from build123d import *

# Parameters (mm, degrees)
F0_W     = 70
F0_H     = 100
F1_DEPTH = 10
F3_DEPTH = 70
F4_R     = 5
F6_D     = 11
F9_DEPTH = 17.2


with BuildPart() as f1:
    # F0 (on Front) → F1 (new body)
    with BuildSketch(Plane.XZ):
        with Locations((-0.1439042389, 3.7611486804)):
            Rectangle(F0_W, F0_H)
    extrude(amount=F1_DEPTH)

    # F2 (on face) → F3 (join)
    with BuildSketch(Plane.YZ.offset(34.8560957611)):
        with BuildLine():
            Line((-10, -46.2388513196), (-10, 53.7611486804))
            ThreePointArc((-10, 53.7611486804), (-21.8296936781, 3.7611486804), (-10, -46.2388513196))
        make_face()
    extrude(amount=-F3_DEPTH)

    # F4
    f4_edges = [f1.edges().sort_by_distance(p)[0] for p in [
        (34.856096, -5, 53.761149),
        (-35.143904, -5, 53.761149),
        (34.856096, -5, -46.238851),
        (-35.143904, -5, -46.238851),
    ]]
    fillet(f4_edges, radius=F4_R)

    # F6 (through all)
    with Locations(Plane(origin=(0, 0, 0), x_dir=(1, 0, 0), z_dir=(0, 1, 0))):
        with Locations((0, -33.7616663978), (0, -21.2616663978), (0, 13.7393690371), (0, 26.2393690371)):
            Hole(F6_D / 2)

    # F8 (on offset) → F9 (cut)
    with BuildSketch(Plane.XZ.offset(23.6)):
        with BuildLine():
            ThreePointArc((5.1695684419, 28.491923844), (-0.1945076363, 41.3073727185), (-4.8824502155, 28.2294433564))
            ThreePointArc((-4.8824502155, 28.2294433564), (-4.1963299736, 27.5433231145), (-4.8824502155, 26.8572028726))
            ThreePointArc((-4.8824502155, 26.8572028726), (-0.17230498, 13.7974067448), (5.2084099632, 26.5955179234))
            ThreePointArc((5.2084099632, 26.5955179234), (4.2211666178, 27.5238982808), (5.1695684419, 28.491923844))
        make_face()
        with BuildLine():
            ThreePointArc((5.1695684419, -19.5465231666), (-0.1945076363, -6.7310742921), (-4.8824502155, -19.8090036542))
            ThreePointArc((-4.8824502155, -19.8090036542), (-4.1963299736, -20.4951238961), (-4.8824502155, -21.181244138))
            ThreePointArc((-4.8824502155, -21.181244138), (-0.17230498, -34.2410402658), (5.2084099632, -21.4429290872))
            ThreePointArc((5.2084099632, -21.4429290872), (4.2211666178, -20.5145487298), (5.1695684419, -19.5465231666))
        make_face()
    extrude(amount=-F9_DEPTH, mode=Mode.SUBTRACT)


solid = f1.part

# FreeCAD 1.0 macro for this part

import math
import FreeCAD as App
import Part
import Sketcher

V = App.Vector
Q = App.Units.Quantity


def edges_at(feature, points):
    """Names of the edges that pass closest to the given points."""
    edges = feature.Shape.Edges
    near = lambda p: min(range(len(edges)), key=lambda i: edges[i].distToShape(Part.Vertex(*p))[0])
    return sorted({f"Edge{near(p) + 1}" for p in points})

doc = App.newDocument("Part")
body = doc.addObject("PartDesign::Body", "Body")

# Sketch on XZ plane
sketch1 = body.newObject("Sketcher::SketchObject", "Sketch")
sketch1.AttachmentSupport = (doc.getObject("XZ_Plane"), [""])
sketch1.MapMode = "FlatFace"
sketch1.addGeometry([
    Part.LineSegment(V(-35.143904, 53.761149, 0), V(-35.143904, -46.238851, 0)),
    Part.LineSegment(V(-35.143904, -46.238851, 0), V(34.856096, -46.238851, 0)),
    Part.LineSegment(V(34.856096, -46.238851, 0), V(34.856096, 53.761149, 0)),
    Part.LineSegment(V(34.856096, 53.761149, 0), V(-35.143904, 53.761149, 0)),
], False)
sketch1.addConstraint([
    Sketcher.Constraint("Coincident", 0, 2, 1, 1),
    Sketcher.Constraint("Coincident", 1, 2, 2, 1),
    Sketcher.Constraint("Coincident", 2, 2, 3, 1),
    Sketcher.Constraint("Coincident", 3, 2, 0, 1),
    Sketcher.Constraint("Vertical", 0),
    Sketcher.Constraint("Horizontal", 1),
    Sketcher.Constraint("Vertical", 2),
    Sketcher.Constraint("Horizontal", 3),
    Sketcher.Constraint("DistanceX", 1, 1, 1, 2, Q("70 mm")),
    Sketcher.Constraint("DistanceY", 0, 2, 0, 1, Q("100 mm")),
    Sketcher.Constraint("DistanceY", 0, 2, -1, 1, Q("46.238851 mm")),
    Sketcher.Constraint("DistanceX", 0, 2, -1, 1, Q("35.143904 mm")),
])
pad1 = body.newObject("PartDesign::Pad", "Pad")
pad1.Profile = sketch1
pad1.Length = 10

# Sketch on YZ plane
sketch2 = body.newObject("Sketcher::SketchObject", "Sketch001")
sketch2.AttachmentSupport = (doc.getObject("YZ_Plane"), [""])
sketch2.MapMode = "FlatFace"
sketch2.AttachmentOffset = App.Placement(V(0, 0, 34.856096), App.Rotation())
sketch2.addGeometry([
    Part.LineSegment(V(-10, -46.238851, 0), V(-10, 53.761149, 0)),
    Part.ArcOfCircle(Part.Circle(V(89.751456, 3.761149, 0), V(0, 0, 1), 111.58115), math.radians(153.377873), math.radians(206.622127)),
], False)
sketch2.addConstraint([
    Sketcher.Constraint("Coincident", 0, 1, 1, 2),
    Sketcher.Constraint("Coincident", 1, 1, 0, 2),
    Sketcher.Constraint("Vertical", 0),
    Sketcher.Constraint("DistanceY", 0, 1, 0, 2, Q("100 mm")),
    Sketcher.Constraint("DistanceX", 0, 1, -1, 1, Q("10 mm")),
    Sketcher.Constraint("Radius", 1, Q("111.58115 mm")),
    Sketcher.Constraint("DistanceY", -1, 1, 1, 3, Q("3.761149 mm")),
])
pad2 = body.newObject("PartDesign::Pad", "Pad001")
pad2.Profile = sketch2
pad2.Length = 70
pad2.Reversed = True
doc.recompute()

fillet = body.newObject("PartDesign::Fillet", "Fillet")
fillet.Base = (pad2, edges_at(pad2, [
    (34.856, -5, 53.761),
    (-35.144, -5, 53.761),
    (34.856, -5, -46.239),
    (-35.144, -5, -46.239),
]))
fillet.Radius = 5

# Sketch on XZ plane
sketch3 = body.newObject("Sketcher::SketchObject", "Sketch002")
sketch3.AttachmentSupport = (doc.getObject("XZ_Plane"), [""])
sketch3.MapMode = "FlatFace"
sketch3.addGeometry([
    Part.Circle(V(0, 33.761666, 0), V(0, 0, 1), 5.5),
    Part.Circle(V(0, 21.261666, 0), V(0, 0, 1), 5.5),
    Part.Circle(V(0, -13.739369, 0), V(0, 0, 1), 5.5),
    Part.Circle(V(0, -26.239369, 0), V(0, 0, 1), 5.5),
], False)
sketch3.addConstraint([
    Sketcher.Constraint("Equal", 0, 1),
    Sketcher.Constraint("Equal", 1, 2),
    Sketcher.Constraint("Equal", 2, 3),
    Sketcher.Constraint("PointOnObject", 0, 3, -2),
    Sketcher.Constraint("PointOnObject", 1, 3, -2),
    Sketcher.Constraint("PointOnObject", 2, 3, -2),
    Sketcher.Constraint("PointOnObject", 3, 3, -2),
    Sketcher.Constraint("Diameter", 0, Q("11 mm")),
    Sketcher.Constraint("DistanceY", 1, 3, 0, 3, Q("12.5 mm")),
    Sketcher.Constraint("DistanceY", 3, 3, 2, 3, Q("12.5 mm")),
    Sketcher.Constraint("DistanceY", 2, 3, -1, 1, Q("13.739369 mm")),
    Sketcher.Constraint("DistanceY", -1, 1, 0, 3, Q("33.761666 mm")),
])
doc.recompute()
hole = body.newObject("PartDesign::Hole", "Hole")
hole.Profile = sketch3
hole.ThreadType = "None"
hole.Diameter = 11
hole.DepthType = "ThroughAll"
hole.Reversed = True

# Sketch on XZ plane
sketch4 = body.newObject("Sketcher::SketchObject", "Sketch003")
sketch4.AttachmentSupport = (doc.getObject("XZ_Plane"), [""])
sketch4.MapMode = "FlatFace"
sketch4.AttachmentOffset = App.Placement(V(0, 0, 23.6), App.Rotation())
sketch4.addGeometry([
    Part.ArcOfCircle(Part.Circle(V(0, 33.858459, 0), V(0, 0, 1), 7.451452), math.radians(-46.070991), math.radians(229.062551)),  # 0
    Part.ArcOfCircle(Part.Circle(V(-4.88245, 27.543323, 0), V(0, 0, 1), 0.68612), math.radians(-90), math.radians(90)),  # 1
    Part.ArcOfCircle(Part.Circle(V(0.020868, 21.246355, 0), V(0, 0, 1), 7.451452), math.radians(131.150196), math.radians(405.878782)),  # 2
    Part.ArcOfCircle(Part.Circle(V(5.169568, 27.543323, 0), V(0, 0, 1), 0.948601), math.radians(90), math.radians(272.346696)),  # 3
    Part.ArcOfCircle(Part.Circle(V(0, -14.179988, 0), V(0, 0, 1), 7.451452), math.radians(-46.070991), math.radians(229.062551)),  # 4
    Part.ArcOfCircle(Part.Circle(V(-4.88245, -20.495124, 0), V(0, 0, 1), 0.68612), math.radians(-90), math.radians(90)),  # 5
    Part.ArcOfCircle(Part.Circle(V(0.020868, -26.792092, 0), V(0, 0, 1), 7.451452), math.radians(131.150196), math.radians(405.878782)),  # 6
    Part.ArcOfCircle(Part.Circle(V(5.169568, -20.495124, 0), V(0, 0, 1), 0.948601), math.radians(90), math.radians(272.346696)),  # 7
], False)
sketch4.addConstraint([
    Sketcher.Constraint("Coincident", 0, 2, 1, 2),
    Sketcher.Constraint("Coincident", 1, 1, 2, 1),
    Sketcher.Constraint("Coincident", 2, 2, 3, 2),
    Sketcher.Constraint("Coincident", 3, 1, 0, 1),
    Sketcher.Constraint("Coincident", 4, 2, 5, 2),
    Sketcher.Constraint("Coincident", 5, 1, 6, 1),
    Sketcher.Constraint("Coincident", 6, 2, 7, 2),
    Sketcher.Constraint("Coincident", 7, 1, 4, 1),
    Sketcher.Constraint("Equal", 0, 2),
    Sketcher.Constraint("Equal", 2, 4),
    Sketcher.Constraint("Equal", 1, 5),
    Sketcher.Constraint("Equal", 4, 6),
    Sketcher.Constraint("Equal", 3, 7),
    Sketcher.Constraint("PointOnObject", 0, 3, -2),
    Sketcher.Constraint("PointOnObject", 4, 3, -2),
    Sketcher.Constraint("Horizontal", 1, 3, 3, 3),
    Sketcher.Constraint("Horizontal", 5, 3, 7, 3),
    Sketcher.Constraint("Vertical", 1, 3, 5, 3),
    Sketcher.Constraint("Vertical", 2, 3, 6, 3),
    Sketcher.Constraint("Vertical", 3, 3, 7, 3),
    Sketcher.Constraint("Vertical", 5, 3, 0, 2),
    Sketcher.Constraint("Vertical", 0, 2, 1, 1),
    Sketcher.Constraint("Vertical", 7, 3, 3, 1),
    Sketcher.Constraint("Vertical", 1, 1, 4, 2),
    Sketcher.Constraint("Vertical", 4, 2, 5, 1),
    Sketcher.Constraint("Radius", 3, Q("0.948601 mm")),
    Sketcher.Constraint("Radius", 1, Q("0.68612 mm")),
    Sketcher.Constraint("Radius", 0, Q("7.451452 mm")),
    Sketcher.Constraint("DistanceX", 2, 3, 3, 3, Q("5.148701 mm")),
    Sketcher.Constraint("DistanceY", -1, 1, 0, 3, Q("33.858459 mm")),
    Sketcher.Constraint("DistanceX", 1, 3, -1, 1, Q("4.88245 mm")),
    Sketcher.Constraint("DistanceY", 6, 2, -1, 1, Q("21.442929 mm")),
])
pocket1 = body.newObject("PartDesign::Pocket", "Pocket")
pocket1.Profile = sketch4
pocket1.Length = 17.2

doc.recompute()
